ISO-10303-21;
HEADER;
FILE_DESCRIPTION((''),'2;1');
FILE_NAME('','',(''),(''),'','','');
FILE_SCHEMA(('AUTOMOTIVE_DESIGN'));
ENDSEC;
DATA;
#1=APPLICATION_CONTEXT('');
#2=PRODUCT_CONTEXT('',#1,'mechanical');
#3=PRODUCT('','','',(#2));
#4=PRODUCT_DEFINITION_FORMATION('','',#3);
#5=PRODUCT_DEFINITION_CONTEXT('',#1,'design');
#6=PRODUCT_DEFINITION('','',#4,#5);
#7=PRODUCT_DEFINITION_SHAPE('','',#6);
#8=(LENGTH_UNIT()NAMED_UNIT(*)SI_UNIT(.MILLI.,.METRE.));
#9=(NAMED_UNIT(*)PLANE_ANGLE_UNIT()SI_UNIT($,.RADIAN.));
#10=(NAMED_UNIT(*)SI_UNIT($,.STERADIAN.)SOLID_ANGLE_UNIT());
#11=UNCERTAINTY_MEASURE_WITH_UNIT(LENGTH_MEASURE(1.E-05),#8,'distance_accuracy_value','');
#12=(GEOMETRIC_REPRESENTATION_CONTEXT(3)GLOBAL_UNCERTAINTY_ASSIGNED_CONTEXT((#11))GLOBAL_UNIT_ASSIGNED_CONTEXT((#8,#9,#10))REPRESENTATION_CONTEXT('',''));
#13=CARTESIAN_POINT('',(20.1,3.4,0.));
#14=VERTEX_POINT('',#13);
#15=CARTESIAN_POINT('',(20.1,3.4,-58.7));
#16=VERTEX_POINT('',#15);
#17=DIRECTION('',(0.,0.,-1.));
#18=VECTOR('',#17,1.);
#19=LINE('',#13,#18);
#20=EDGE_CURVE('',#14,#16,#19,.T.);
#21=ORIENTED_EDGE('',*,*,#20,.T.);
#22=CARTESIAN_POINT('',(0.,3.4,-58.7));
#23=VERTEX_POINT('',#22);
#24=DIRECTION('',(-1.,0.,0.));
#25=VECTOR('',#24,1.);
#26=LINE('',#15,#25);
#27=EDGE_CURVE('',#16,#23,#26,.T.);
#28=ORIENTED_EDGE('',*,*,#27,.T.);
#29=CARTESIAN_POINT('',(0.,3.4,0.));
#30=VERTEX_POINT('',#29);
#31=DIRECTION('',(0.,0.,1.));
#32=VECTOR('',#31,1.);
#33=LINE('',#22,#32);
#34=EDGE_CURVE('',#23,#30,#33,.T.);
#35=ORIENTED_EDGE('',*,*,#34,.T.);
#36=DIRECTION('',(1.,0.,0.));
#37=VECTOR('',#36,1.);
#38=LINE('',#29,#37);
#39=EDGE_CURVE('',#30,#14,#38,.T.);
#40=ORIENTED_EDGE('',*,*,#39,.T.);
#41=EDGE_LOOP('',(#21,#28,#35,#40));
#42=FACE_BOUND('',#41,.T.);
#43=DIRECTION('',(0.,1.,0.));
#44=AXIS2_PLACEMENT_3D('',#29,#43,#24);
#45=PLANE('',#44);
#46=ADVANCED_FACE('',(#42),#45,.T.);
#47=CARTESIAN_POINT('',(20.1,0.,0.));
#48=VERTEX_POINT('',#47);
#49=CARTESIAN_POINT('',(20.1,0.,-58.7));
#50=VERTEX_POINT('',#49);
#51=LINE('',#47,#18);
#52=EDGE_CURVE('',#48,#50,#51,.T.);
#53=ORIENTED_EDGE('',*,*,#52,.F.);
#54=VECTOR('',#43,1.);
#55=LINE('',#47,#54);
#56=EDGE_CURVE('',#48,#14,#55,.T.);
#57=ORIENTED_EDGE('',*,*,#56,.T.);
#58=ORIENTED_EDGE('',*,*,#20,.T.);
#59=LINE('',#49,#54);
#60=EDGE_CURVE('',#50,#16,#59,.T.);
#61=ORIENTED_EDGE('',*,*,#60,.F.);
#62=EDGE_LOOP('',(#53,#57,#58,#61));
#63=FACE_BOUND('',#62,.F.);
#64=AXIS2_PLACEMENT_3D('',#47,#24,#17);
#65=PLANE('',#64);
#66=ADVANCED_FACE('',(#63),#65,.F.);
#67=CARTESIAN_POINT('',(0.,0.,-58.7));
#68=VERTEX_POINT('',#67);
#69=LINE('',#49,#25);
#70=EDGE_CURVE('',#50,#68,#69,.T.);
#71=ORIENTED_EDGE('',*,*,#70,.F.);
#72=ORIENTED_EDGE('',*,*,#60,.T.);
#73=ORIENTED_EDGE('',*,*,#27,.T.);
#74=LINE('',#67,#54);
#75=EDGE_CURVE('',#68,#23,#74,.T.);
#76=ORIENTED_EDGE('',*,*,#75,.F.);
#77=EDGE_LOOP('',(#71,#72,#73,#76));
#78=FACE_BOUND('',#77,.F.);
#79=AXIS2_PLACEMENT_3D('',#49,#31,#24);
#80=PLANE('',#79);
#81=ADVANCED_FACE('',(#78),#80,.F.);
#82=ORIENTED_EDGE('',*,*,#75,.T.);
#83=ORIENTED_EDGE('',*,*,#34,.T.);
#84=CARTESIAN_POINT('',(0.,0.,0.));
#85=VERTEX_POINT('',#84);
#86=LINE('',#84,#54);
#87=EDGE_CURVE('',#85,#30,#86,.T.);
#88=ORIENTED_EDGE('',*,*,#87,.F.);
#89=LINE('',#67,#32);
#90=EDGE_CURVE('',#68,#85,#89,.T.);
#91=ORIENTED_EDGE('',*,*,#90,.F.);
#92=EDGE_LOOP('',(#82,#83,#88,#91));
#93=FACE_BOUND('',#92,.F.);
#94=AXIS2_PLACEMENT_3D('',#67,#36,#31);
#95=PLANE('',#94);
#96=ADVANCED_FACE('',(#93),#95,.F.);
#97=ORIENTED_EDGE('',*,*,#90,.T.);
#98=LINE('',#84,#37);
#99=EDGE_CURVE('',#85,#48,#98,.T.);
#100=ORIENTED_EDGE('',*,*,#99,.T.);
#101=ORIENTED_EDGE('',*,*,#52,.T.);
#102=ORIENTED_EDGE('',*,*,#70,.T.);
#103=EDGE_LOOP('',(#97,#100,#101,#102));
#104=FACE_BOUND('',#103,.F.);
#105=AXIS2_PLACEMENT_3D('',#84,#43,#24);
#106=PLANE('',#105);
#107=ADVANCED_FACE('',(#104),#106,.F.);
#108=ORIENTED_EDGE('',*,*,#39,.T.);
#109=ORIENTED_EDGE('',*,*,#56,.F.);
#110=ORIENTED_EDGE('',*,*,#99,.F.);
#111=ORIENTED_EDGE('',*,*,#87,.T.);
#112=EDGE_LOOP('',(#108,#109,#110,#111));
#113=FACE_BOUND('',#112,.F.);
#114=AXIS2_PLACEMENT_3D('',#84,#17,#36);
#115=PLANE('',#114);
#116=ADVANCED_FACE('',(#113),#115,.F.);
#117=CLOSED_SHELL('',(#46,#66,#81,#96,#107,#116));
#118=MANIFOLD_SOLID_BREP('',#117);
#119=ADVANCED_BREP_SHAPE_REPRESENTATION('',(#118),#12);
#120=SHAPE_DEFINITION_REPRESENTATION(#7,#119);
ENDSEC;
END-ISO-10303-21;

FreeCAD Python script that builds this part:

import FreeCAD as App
import Part
import Sketcher
from FreeCAD import Vector

doc = App.newDocument("Part")
body = doc.addObject("PartDesign::Body", "Body")

# Sketch on XZ plane
sketch1 = body.newObject("Sketcher::SketchObject", "Sketch")
sketch1.AttachmentSupport = (doc.getObject("XZ_Plane"), [""])
sketch1.MapMode = "FlatFace"
sketch1.addGeometry(Part.LineSegment(Vector(0, -59, 0), Vector(0, 0, 0)), False)
sketch1.addGeometry(Part.LineSegment(Vector(0, 0, 0), Vector(20, 0, 0)), False)
sketch1.addGeometry(Part.LineSegment(Vector(20, 0, 0), Vector(20, -59, 0)), False)
sketch1.addGeometry(Part.LineSegment(Vector(20, -59, 0), Vector(0, -59, 0)), False)
sketch1.addConstraint(Sketcher.Constraint("Coincident", 0, 2, 1, 1))
sketch1.addConstraint(Sketcher.Constraint("Coincident", 1, 2, 2, 1))
sketch1.addConstraint(Sketcher.Constraint("Coincident", 2, 2, 3, 1))
sketch1.addConstraint(Sketcher.Constraint("Coincident", 3, 2, 0, 1))
sketch1.addConstraint(Sketcher.Constraint("Vertical", 0))
sketch1.addConstraint(Sketcher.Constraint("Horizontal", 1))
sketch1.addConstraint(Sketcher.Constraint("Vertical", 2))
sketch1.addConstraint(Sketcher.Constraint("Horizontal", 3))
sketch1.addConstraint(Sketcher.Constraint("Coincident", 0, 2, -1, 1))
sketch1.addConstraint(Sketcher.Constraint("DistanceX", 1, 1, 1, 2, 20.1))
sketch1.addConstraint(Sketcher.Constraint("DistanceY", 0, 1, 0, 2, 58.7))
pad1 = body.newObject("PartDesign::Pad", "Pad")
pad1.Profile = sketch1
pad1.Length = 3.4
pad1.Reversed = True

doc.recompute()
